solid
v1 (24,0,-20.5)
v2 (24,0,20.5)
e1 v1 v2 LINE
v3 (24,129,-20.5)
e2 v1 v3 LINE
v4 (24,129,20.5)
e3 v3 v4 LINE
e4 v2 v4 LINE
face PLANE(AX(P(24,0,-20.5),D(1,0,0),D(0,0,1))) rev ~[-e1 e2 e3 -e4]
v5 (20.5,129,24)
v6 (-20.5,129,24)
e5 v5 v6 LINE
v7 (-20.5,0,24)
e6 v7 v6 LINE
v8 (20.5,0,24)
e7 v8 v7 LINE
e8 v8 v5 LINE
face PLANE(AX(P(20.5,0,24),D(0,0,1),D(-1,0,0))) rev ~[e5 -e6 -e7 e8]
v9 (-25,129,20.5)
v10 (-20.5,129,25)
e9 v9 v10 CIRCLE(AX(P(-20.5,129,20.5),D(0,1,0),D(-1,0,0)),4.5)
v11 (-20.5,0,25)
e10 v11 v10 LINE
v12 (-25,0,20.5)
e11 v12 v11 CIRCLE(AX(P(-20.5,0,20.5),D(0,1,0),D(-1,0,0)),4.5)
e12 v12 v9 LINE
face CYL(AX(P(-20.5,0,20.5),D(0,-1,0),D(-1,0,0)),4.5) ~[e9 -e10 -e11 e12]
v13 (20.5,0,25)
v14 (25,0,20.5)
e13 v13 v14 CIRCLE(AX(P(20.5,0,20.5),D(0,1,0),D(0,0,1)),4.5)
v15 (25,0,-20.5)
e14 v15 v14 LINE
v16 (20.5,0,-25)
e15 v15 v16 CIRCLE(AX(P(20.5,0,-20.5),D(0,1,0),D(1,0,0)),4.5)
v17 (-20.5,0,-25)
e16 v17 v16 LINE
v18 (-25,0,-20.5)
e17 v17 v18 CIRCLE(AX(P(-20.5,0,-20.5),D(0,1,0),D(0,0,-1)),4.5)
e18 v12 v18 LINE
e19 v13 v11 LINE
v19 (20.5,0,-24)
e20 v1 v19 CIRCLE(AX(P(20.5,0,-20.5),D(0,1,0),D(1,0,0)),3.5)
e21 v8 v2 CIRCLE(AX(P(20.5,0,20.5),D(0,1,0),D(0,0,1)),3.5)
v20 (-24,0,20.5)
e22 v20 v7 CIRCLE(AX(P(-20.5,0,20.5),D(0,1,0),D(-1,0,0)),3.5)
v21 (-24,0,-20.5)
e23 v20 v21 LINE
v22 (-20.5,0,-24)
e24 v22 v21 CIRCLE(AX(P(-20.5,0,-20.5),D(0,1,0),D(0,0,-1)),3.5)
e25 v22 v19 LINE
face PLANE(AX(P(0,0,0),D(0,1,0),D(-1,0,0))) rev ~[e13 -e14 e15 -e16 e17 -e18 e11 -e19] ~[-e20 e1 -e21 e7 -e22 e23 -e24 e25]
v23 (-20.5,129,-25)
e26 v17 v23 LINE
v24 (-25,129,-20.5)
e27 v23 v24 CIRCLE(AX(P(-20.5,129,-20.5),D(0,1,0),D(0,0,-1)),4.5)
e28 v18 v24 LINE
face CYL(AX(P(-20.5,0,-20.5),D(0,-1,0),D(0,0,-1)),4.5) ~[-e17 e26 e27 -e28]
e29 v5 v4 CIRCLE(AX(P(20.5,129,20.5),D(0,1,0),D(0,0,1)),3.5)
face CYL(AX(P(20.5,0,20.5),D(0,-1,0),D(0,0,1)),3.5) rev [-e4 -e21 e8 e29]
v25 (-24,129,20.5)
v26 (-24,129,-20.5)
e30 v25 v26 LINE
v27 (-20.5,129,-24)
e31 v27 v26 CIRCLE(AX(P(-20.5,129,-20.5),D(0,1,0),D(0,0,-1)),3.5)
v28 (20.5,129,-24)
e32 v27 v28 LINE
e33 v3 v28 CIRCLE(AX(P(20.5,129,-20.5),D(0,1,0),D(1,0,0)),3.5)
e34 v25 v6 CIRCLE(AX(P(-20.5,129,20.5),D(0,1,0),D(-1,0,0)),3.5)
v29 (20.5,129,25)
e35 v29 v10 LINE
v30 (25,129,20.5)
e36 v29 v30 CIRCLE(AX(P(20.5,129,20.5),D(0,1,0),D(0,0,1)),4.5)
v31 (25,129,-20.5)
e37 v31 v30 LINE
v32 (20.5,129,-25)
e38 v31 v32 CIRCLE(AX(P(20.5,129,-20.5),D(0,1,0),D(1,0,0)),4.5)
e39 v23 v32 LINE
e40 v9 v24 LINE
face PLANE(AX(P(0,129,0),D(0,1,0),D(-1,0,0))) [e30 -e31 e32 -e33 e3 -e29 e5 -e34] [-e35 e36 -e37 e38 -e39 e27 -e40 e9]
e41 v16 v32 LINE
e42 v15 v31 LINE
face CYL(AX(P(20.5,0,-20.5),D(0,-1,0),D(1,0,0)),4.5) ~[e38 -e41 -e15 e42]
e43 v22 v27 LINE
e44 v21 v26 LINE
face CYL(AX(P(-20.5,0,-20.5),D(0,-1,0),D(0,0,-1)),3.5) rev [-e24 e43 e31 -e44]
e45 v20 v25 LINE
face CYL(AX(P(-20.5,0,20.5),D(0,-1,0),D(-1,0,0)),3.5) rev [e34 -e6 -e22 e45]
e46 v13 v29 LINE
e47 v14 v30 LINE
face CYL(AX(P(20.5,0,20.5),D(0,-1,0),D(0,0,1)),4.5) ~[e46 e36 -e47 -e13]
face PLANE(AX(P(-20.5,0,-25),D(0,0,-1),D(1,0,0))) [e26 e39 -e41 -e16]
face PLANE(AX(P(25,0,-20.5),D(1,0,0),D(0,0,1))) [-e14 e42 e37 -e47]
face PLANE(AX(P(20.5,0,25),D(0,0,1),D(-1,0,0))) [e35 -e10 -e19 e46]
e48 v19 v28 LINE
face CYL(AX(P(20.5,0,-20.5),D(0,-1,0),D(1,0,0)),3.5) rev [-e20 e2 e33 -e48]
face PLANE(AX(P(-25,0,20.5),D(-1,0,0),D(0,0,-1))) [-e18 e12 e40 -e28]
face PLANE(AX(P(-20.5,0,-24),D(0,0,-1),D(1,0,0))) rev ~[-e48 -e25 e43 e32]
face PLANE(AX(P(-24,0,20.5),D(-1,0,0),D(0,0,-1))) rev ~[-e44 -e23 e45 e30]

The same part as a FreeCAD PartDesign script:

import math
import FreeCAD as App
import Part
import Sketcher
from FreeCAD import Vector

doc = App.newDocument("Part")
body = doc.addObject("PartDesign::Body", "Body")

# Sketch on XZ plane
sketch1 = body.newObject("Sketcher::SketchObject", "Sketch")
sketch1.AttachmentSupport = (doc.getObject("XZ_Plane"), [""])
sketch1.MapMode = "FlatFace"
sketch1.addGeometry([
    Part.LineSegment(Vector(25, 20.5, 0), Vector(25, -20.5, 0)),  # 0
    Part.ArcOfCircle(Part.Circle(Vector(20.5, -20.5, 0), Vector(0, 0, 1), 4.5), math.radians(-90), math.radians(0)),  # 1
    Part.LineSegment(Vector(20.5, -25, 0), Vector(-20.5, -25, 0)),  # 2
    Part.ArcOfCircle(Part.Circle(Vector(-20.5, -20.5, 0), Vector(0, 0, 1), 4.5), math.radians(180), math.radians(270)),  # 3
    Part.LineSegment(Vector(-25, -20.5, 0), Vector(-25, 20.5, 0)),  # 4
    Part.ArcOfCircle(Part.Circle(Vector(-20.5, 20.5, 0), Vector(0, 0, 1), 4.5), math.radians(90), math.radians(180)),  # 5
    Part.LineSegment(Vector(-20.5, 25, 0), Vector(20.5, 25, 0)),  # 6
    Part.ArcOfCircle(Part.Circle(Vector(20.5, 20.5, 0), Vector(0, 0, 1), 4.5), math.radians(0), math.radians(90)),  # 7
    Part.ArcOfCircle(Part.Circle(Vector(-20.5, -20.5, 0), Vector(0, 0, 1), 3.5), math.radians(180), math.radians(270)),  # 8
    Part.LineSegment(Vector(-20.5, -24, 0), Vector(20.5, -24, 0)),  # 9
    Part.ArcOfCircle(Part.Circle(Vector(20.5, -20.5, 0), Vector(0, 0, 1), 3.5), math.radians(-90), math.radians(0)),  # 10
    Part.LineSegment(Vector(24, -20.5, 0), Vector(24, 20.5, 0)),  # 11
    Part.ArcOfCircle(Part.Circle(Vector(20.5, 20.5, 0), Vector(0, 0, 1), 3.5), math.radians(0), math.radians(90)),  # 12
    Part.LineSegment(Vector(20.5, 24, 0), Vector(-20.5, 24, 0)),  # 13
    Part.ArcOfCircle(Part.Circle(Vector(-20.5, 20.5, 0), Vector(0, 0, 1), 3.5), math.radians(90), math.radians(180)),  # 14
    Part.LineSegment(Vector(-24, 20.5, 0), Vector(-24, -20.5, 0)),  # 15
], False)
sketch1.addConstraint([
    Sketcher.Constraint("Tangent", 0, 2, 1, 2),
    Sketcher.Constraint("Tangent", 1, 1, 2, 1),
    Sketcher.Constraint("Tangent", 2, 2, 3, 2),
    Sketcher.Constraint("Tangent", 3, 1, 4, 1),
    Sketcher.Constraint("Tangent", 4, 2, 5, 2),
    Sketcher.Constraint("Tangent", 5, 1, 6, 1),
    Sketcher.Constraint("Tangent", 6, 2, 7, 2),
    Sketcher.Constraint("Tangent", 7, 1, 0, 1),
    Sketcher.Constraint("Tangent", 8, 2, 9, 1),
    Sketcher.Constraint("Tangent", 9, 2, 10, 1),
    Sketcher.Constraint("Tangent", 10, 2, 11, 1),
    Sketcher.Constraint("Tangent", 11, 2, 12, 1),
    Sketcher.Constraint("Tangent", 12, 2, 13, 1),
    Sketcher.Constraint("Tangent", 13, 2, 14, 1),
    Sketcher.Constraint("Tangent", 14, 2, 15, 1),
    Sketcher.Constraint("Tangent", 15, 2, 8, 1),
    Sketcher.Constraint("Vertical", 0),
    Sketcher.Constraint("Horizontal", 2),
    Sketcher.Constraint("Vertical", 4),
    Sketcher.Constraint("Horizontal", 6),
    Sketcher.Constraint("Horizontal", 9),
    Sketcher.Constraint("Vertical", 11),
    Sketcher.Constraint("Horizontal", 13),
    Sketcher.Constraint("Vertical", 15),
    Sketcher.Constraint("Coincident", 8, 3, 3, 3),
    Sketcher.Constraint("Coincident", 10, 3, 1, 3),
    Sketcher.Constraint("Coincident", 12, 3, 7, 3),
    Sketcher.Constraint("Equal", 1, 3),
    Sketcher.Constraint("Equal", 3, 5),
    Sketcher.Constraint("Equal", 5, 7),
    Sketcher.Constraint("Equal", 12, 14),
    Sketcher.Constraint("Symmetric", 1, 3, 5, 3, -1, 1),
    Sketcher.Constraint("Equal", 13, 0),
    Sketcher.Constraint("Radius", 1, 4.5),
    Sketcher.Constraint("DistanceX", -1, 1, 0, 2, 25.0),
    Sketcher.Constraint("DistanceY", 2, 2, 8, 2, 1.0),
])
pad1 = body.newObject("PartDesign::Pad", "Pad")
pad1.Profile = sketch1
pad1.Length = 129
pad1.Reversed = True

doc.recompute()
